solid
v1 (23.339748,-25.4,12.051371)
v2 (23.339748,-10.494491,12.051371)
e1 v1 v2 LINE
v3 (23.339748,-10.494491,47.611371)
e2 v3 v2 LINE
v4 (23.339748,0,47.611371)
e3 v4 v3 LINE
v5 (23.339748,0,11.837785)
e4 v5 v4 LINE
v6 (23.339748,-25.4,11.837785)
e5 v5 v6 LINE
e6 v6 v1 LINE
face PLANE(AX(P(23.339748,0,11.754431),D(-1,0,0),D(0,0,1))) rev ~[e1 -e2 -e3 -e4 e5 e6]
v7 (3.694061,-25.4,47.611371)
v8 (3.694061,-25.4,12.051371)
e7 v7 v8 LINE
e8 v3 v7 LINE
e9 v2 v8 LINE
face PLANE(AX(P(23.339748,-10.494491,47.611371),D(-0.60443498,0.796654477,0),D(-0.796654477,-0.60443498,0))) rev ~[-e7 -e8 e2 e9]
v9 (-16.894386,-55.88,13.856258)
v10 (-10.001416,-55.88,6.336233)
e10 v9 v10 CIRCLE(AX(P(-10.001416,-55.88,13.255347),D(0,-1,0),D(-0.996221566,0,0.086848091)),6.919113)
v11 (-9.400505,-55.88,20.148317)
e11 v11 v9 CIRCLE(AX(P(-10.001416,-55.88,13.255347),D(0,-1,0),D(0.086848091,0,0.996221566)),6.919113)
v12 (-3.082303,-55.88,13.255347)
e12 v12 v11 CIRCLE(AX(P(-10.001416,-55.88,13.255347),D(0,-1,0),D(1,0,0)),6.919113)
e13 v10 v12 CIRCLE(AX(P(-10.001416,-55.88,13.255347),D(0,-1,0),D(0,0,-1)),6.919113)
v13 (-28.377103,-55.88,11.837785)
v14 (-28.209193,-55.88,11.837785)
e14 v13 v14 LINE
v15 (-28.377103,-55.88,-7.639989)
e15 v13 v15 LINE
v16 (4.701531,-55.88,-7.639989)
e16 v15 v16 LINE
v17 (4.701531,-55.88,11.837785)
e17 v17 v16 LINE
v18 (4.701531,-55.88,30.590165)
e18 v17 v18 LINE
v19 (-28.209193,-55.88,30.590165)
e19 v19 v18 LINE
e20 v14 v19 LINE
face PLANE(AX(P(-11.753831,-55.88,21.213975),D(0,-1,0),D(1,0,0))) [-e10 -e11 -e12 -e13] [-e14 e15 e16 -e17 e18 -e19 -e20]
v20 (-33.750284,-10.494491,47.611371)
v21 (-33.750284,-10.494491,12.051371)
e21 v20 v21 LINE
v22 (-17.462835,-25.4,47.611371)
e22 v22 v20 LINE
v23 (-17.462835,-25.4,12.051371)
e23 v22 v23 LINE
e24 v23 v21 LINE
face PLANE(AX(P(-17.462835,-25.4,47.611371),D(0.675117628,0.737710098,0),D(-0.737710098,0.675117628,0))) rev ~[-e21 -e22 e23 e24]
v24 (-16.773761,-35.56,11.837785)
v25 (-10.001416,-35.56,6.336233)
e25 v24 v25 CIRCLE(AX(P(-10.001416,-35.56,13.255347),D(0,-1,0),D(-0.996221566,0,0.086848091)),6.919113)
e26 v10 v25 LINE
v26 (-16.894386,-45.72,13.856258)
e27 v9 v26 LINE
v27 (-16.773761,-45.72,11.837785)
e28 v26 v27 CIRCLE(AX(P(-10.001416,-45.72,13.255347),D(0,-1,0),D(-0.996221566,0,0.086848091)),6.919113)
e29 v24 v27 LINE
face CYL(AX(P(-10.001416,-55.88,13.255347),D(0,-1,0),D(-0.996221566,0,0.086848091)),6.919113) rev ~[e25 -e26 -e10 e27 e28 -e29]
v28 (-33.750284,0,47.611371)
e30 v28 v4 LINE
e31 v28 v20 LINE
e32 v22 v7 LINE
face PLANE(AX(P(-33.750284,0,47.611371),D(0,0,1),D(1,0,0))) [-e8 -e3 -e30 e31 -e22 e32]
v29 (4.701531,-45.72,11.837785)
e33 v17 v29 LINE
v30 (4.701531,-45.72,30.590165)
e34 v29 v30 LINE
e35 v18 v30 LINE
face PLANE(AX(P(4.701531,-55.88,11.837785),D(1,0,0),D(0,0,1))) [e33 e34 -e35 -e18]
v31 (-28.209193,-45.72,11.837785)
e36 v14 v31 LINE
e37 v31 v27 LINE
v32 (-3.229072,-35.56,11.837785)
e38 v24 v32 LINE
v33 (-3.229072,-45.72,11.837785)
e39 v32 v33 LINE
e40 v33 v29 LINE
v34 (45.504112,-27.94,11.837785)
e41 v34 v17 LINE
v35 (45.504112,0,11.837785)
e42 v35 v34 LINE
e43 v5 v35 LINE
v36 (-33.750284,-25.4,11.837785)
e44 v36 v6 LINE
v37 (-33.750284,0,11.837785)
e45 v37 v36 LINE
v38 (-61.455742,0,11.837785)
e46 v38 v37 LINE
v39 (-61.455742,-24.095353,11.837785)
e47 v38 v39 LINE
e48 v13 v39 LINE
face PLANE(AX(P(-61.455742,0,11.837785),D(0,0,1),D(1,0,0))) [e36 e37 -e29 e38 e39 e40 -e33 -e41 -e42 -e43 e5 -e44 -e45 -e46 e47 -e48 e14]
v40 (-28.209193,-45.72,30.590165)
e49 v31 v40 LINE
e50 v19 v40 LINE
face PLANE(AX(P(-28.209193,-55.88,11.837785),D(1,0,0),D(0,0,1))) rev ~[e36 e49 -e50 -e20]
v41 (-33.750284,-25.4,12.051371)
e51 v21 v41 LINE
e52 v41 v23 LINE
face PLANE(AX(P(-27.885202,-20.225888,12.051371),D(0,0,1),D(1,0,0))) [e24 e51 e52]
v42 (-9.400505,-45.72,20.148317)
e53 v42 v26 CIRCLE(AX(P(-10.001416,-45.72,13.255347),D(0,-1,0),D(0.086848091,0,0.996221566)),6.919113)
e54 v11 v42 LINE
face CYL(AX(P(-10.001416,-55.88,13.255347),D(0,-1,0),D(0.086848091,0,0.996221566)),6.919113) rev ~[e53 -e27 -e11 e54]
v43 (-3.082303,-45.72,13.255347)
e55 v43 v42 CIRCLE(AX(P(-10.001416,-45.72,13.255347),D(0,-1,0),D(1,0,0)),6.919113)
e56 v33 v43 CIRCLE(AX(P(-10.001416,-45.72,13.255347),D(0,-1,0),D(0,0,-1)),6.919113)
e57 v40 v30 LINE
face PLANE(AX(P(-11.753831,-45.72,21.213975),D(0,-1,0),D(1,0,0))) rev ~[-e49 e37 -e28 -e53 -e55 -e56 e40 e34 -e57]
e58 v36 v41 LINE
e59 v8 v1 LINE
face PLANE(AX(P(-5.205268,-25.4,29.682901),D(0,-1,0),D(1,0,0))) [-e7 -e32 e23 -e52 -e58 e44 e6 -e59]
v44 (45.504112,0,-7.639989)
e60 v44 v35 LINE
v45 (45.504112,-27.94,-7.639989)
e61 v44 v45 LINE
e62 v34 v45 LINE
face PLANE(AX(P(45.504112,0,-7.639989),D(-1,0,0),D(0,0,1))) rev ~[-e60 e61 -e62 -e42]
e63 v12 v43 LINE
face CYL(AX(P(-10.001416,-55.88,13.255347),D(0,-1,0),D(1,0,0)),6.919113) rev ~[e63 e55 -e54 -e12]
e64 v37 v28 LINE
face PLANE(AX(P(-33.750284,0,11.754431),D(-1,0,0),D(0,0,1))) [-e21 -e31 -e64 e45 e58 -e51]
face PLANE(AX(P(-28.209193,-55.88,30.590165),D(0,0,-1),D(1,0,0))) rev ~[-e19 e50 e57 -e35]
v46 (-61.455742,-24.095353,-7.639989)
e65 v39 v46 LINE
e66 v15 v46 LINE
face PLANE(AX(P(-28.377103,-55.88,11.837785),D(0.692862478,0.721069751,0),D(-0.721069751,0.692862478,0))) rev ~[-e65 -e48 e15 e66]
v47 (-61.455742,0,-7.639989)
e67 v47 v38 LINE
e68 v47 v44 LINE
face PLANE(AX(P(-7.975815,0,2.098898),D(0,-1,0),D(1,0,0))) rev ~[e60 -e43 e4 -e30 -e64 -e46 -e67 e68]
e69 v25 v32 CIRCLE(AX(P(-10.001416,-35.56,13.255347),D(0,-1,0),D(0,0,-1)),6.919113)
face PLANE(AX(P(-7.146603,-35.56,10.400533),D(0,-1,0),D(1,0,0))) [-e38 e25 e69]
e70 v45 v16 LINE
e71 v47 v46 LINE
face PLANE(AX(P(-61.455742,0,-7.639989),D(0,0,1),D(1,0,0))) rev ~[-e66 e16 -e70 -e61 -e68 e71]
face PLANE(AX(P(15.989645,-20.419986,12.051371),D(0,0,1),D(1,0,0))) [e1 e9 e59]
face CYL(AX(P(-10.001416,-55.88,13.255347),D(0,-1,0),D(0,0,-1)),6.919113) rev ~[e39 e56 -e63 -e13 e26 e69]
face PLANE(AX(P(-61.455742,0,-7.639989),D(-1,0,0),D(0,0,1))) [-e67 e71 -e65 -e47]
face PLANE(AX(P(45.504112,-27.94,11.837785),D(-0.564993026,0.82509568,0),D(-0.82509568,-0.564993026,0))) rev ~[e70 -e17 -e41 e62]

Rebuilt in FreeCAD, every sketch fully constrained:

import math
import FreeCAD as App
import Part
import Sketcher

V = App.Vector
Q = App.Units.Quantity

doc = App.newDocument("Part")
body = doc.addObject("PartDesign::Body", "Body")

# Sketch on XZ plane
sketch1 = doc.addObject("Sketcher::SketchObject", "Sketch")
body.addObject(sketch1)
sketch1.AttachmentSupport = (doc.XZ_Plane, [""])
sketch1.MapMode = "FlatFace"
sketch1.addGeometry(Part.LineSegment(V(-61, 12, 0), V(-61, -8, 0)), False)
sketch1.addGeometry(Part.LineSegment(V(-61, -8, 0), V(46, -8, 0)), False)
sketch1.addGeometry(Part.LineSegment(V(46, -8, 0), V(46, 12, 0)), False)
sketch1.addGeometry(Part.LineSegment(V(46, 12, 0), V(-61, 12, 0)), False)
sketch1.addConstraint(Sketcher.Constraint("Coincident", 0, 2, 1, 1))
sketch1.addConstraint(Sketcher.Constraint("Coincident", 1, 2, 2, 1))
sketch1.addConstraint(Sketcher.Constraint("Coincident", 2, 2, 3, 1))
sketch1.addConstraint(Sketcher.Constraint("Coincident", 3, 2, 0, 1))
sketch1.addConstraint(Sketcher.Constraint("Vertical", 0))
sketch1.addConstraint(Sketcher.Constraint("Horizontal", 1))
sketch1.addConstraint(Sketcher.Constraint("Vertical", 2))
sketch1.addConstraint(Sketcher.Constraint("Horizontal", 3))
sketch1.addConstraint(Sketcher.Constraint("DistanceX", 1, 1, 1, 2, Q("106.959853 mm")))
sketch1.addConstraint(Sketcher.Constraint("DistanceY", 0, 2, 0, 1, Q("19.477774 mm")))
sketch1.addConstraint(Sketcher.Constraint("DistanceX", 0, 2, -1, 1, Q("61.455742 mm")))
sketch1.addConstraint(Sketcher.Constraint("DistanceY", 0, 2, -1, 1, Q("7.639989 mm")))
pad1 = doc.addObject("PartDesign::Pad", "Pad")
body.addObject(pad1)
pad1.Profile = sketch1
pad1.Length = Q("2.2 in")

# Sketch on XY plane
sketch2 = doc.addObject("Sketcher::SketchObject", "Sketch001")
body.addObject(sketch2)
sketch2.AttachmentSupport = (doc.XY_Plane, [""])
sketch2.MapMode = "FlatFace"
sketch2.AttachmentOffset = App.Placement(V(0, 0, 11.837785), App.Rotation())
sketch2.addGeometry(Part.LineSegment(V(46, -28, 0), V(5, -56, 0)), False)
sketch2.addGeometry(Part.LineSegment(V(5, -56, 0), V(46, -56, 0)), False)
sketch2.addGeometry(Part.LineSegment(V(46, -56, 0), V(46, -28, 0)), False)
sketch2.addGeometry(Part.LineSegment(V(-61, -56, 0), V(-28, -56, 0)), False)
sketch2.addGeometry(Part.LineSegment(V(-28, -56, 0), V(-61, -24, 0)), False)
sketch2.addGeometry(Part.LineSegment(V(-61, -24, 0), V(-61, -56, 0)), False)
sketch2.addConstraint(Sketcher.Constraint("Coincident", 0, 2, 1, 1))
sketch2.addConstraint(Sketcher.Constraint("Coincident", 1, 2, 2, 1))
sketch2.addConstraint(Sketcher.Constraint("Coincident", 2, 2, 0, 1))
sketch2.addConstraint(Sketcher.Constraint("Coincident", 3, 2, 4, 1))
sketch2.addConstraint(Sketcher.Constraint("Coincident", 4, 2, 5, 1))
sketch2.addConstraint(Sketcher.Constraint("Coincident", 5, 2, 3, 1))
sketch2.addConstraint(Sketcher.Constraint("Horizontal", 1))
sketch2.addConstraint(Sketcher.Constraint("Vertical", 2))
sketch2.addConstraint(Sketcher.Constraint("Horizontal", 3))
sketch2.addConstraint(Sketcher.Constraint("Vertical", 5))
sketch2.addConstraint(Sketcher.Constraint("Horizontal", 1, 2, 3, 2))
sketch2.addConstraint(Sketcher.Constraint("DistanceY", 2, 1, 2, 2, Q("1.1 in")))
sketch2.addConstraint(Sketcher.Constraint("DistanceY", 0, 2, -1, 1, Q("2.2 in")))
sketch2.addConstraint(Sketcher.Constraint("DistanceX", 1, 1, 1, 2, Q("40.80258 mm")))
sketch2.addConstraint(Sketcher.Constraint("DistanceX", 3, 1, 3, 2, Q("33.078639 mm")))
sketch2.addConstraint(Sketcher.Constraint("DistanceY", 5, 2, 5, 1, Q("31.784647 mm")))
sketch2.addConstraint(Sketcher.Constraint("DistanceX", -1, 1, 0, 2, Q("4.701531 mm")))
sketch2.addConstraint(Sketcher.Constraint("DistanceX", 4, 2, -1, 1, Q("61.455742 mm")))
pocket1 = doc.addObject("PartDesign::Pocket", "Pocket")
body.addObject(pocket1)
pocket1.Profile = sketch2
pocket1.Length = Q("1 in")

# Sketch on XZ plane
sketch3 = doc.addObject("Sketcher::SketchObject", "Sketch002")
body.addObject(sketch3)
sketch3.AttachmentSupport = (doc.XZ_Plane, [""])
sketch3.MapMode = "FlatFace"
sketch3.addGeometry(Part.LineSegment(V(-34, 48, 0), V(-34, 12, 0)), False)
sketch3.addGeometry(Part.LineSegment(V(-34, 12, 0), V(23, 12, 0)), False)
sketch3.addGeometry(Part.LineSegment(V(23, 12, 0), V(23, 48, 0)), False)
sketch3.addGeometry(Part.LineSegment(V(23, 48, 0), V(-34, 48, 0)), False)
sketch3.addConstraint(Sketcher.Constraint("Coincident", 0, 2, 1, 1))
sketch3.addConstraint(Sketcher.Constraint("Coincident", 1, 2, 2, 1))
sketch3.addConstraint(Sketcher.Constraint("Coincident", 2, 2, 3, 1))
sketch3.addConstraint(Sketcher.Constraint("Coincident", 3, 2, 0, 1))
sketch3.addConstraint(Sketcher.Constraint("Vertical", 0))
sketch3.addConstraint(Sketcher.Constraint("Horizontal", 1))
sketch3.addConstraint(Sketcher.Constraint("Vertical", 2))
sketch3.addConstraint(Sketcher.Constraint("Horizontal", 3))
sketch3.addConstraint(Sketcher.Constraint("DistanceY", 0, 2, 0, 1, Q("35.85694 mm")))
sketch3.addConstraint(Sketcher.Constraint("DistanceX", 1, 1, 1, 2, Q("57.090033 mm")))
sketch3.addConstraint(Sketcher.Constraint("DistanceY", -1, 1, 0, 2, Q("11.754431 mm")))
sketch3.addConstraint(Sketcher.Constraint("DistanceX", -1, 1, 1, 2, Q("23.339748 mm")))
pad2 = doc.addObject("PartDesign::Pad", "Pad001")
body.addObject(pad2)
pad2.Profile = sketch3
pad2.Length = Q("1 in")

# Sketch on XY plane
sketch4 = doc.addObject("Sketcher::SketchObject", "Sketch003")
body.addObject(sketch4)
sketch4.AttachmentSupport = (doc.XY_Plane, [""])
sketch4.MapMode = "FlatFace"
sketch4.AttachmentOffset = App.Placement(V(0, 0, 47.611371), App.Rotation())
sketch4.addGeometry(Part.LineSegment(V(23, -10, 0), V(4, -25, 0)), False)
sketch4.addGeometry(Part.LineSegment(V(4, -25, 0), V(23, -25, 0)), False)
sketch4.addGeometry(Part.LineSegment(V(23, -25, 0), V(23, -10, 0)), False)
sketch4.addGeometry(Part.LineSegment(V(-34, -25, 0), V(-17, -25, 0)), False)
sketch4.addGeometry(Part.LineSegment(V(-17, -25, 0), V(-34, -10, 0)), False)
sketch4.addGeometry(Part.LineSegment(V(-34, -10, 0), V(-34, -25, 0)), False)
sketch4.addConstraint(Sketcher.Constraint("Coincident", 0, 2, 1, 1))
sketch4.addConstraint(Sketcher.Constraint("Coincident", 1, 2, 2, 1))
sketch4.addConstraint(Sketcher.Constraint("Coincident", 2, 2, 0, 1))
sketch4.addConstraint(Sketcher.Constraint("Coincident", 3, 2, 4, 1))
sketch4.addConstraint(Sketcher.Constraint("Coincident", 4, 2, 5, 1))
sketch4.addConstraint(Sketcher.Constraint("Coincident", 5, 2, 3, 1))
sketch4.addConstraint(Sketcher.Constraint("Horizontal", 1))
sketch4.addConstraint(Sketcher.Constraint("Vertical", 2))
sketch4.addConstraint(Sketcher.Constraint("Horizontal", 3))
sketch4.addConstraint(Sketcher.Constraint("Vertical", 5))
sketch4.addConstraint(Sketcher.Constraint("Horizontal", 1, 2, 3, 2))
sketch4.addConstraint(Sketcher.Constraint("Horizontal", 2, 2, 4, 2))
sketch4.addConstraint(Sketcher.Constraint("DistanceY", 0, 2, -1, 1, Q("1 in")))
sketch4.addConstraint(Sketcher.Constraint("DistanceX", 3, 1, 3, 2, Q("16.28745 mm")))
sketch4.addConstraint(Sketcher.Constraint("DistanceY", 2, 1, 2, 2, Q("14.905509 mm")))
sketch4.addConstraint(Sketcher.Constraint("DistanceX", 1, 1, 1, 2, Q("19.645687 mm")))
sketch4.addConstraint(Sketcher.Constraint("DistanceX", -1, 1, 0, 2, Q("3.694061 mm")))
sketch4.addConstraint(Sketcher.Constraint("DistanceX", 3, 2, -1, 1, Q("17.462835 mm")))
pocket2 = doc.addObject("PartDesign::Pocket", "Pocket001")
body.addObject(pocket2)
pocket2.Profile = sketch4
pocket2.Length = Q("1.4 in")

# Sketch on XZ plane
sketch5 = doc.addObject("Sketcher::SketchObject", "Sketch004")
body.addObject(sketch5)
sketch5.AttachmentSupport = (doc.XZ_Plane, [""])
sketch5.MapMode = "FlatFace"
sketch5.AttachmentOffset = App.Placement(V(0, 0, 2.2 * 25.4), App.Rotation())
sketch5.addGeometry(Part.LineSegment(V(-28, 31, 0), V(-28, 12, 0)), False)
sketch5.addGeometry(Part.LineSegment(V(-28, 12, 0), V(5, 12, 0)), False)
sketch5.addGeometry(Part.LineSegment(V(5, 12, 0), V(5, 31, 0)), False)
sketch5.addGeometry(Part.LineSegment(V(5, 31, 0), V(-28, 31, 0)), False)
sketch5.addConstraint(Sketcher.Constraint("Coincident", 0, 2, 1, 1))
sketch5.addConstraint(Sketcher.Constraint("Coincident", 1, 2, 2, 1))
sketch5.addConstraint(Sketcher.Constraint("Coincident", 2, 2, 3, 1))
sketch5.addConstraint(Sketcher.Constraint("Coincident", 3, 2, 0, 1))
sketch5.addConstraint(Sketcher.Constraint("Vertical", 0))
sketch5.addConstraint(Sketcher.Constraint("Horizontal", 1))
sketch5.addConstraint(Sketcher.Constraint("Vertical", 2))
sketch5.addConstraint(Sketcher.Constraint("Horizontal", 3))
sketch5.addConstraint(Sketcher.Constraint("DistanceY", 0, 2, 0, 1, Q("18.75238 mm")))
sketch5.addConstraint(Sketcher.Constraint("DistanceX", 1, 1, 1, 2, Q("32.910724 mm")))
sketch5.addConstraint(Sketcher.Constraint("DistanceX", -1, 1, 1, 2, Q("4.701531 mm")))
sketch5.addConstraint(Sketcher.Constraint("DistanceY", -1, 1, 0, 2, Q("11.837785 mm")))
pad3 = doc.addObject("PartDesign::Pad", "Pad002")
body.addObject(pad3)
pad3.Profile = sketch5
pad3.Length = Q("0.4 in")
pad3.Reversed = True

# Sketch on XZ plane
sketch6 = doc.addObject("Sketcher::SketchObject", "Sketch005")
body.addObject(sketch6)
sketch6.AttachmentSupport = (doc.XZ_Plane, [""])
sketch6.MapMode = "FlatFace"
sketch6.AttachmentOffset = App.Placement(V(0, 0, 2.2 * 25.4), App.Rotation())
sketch6.addGeometry(Part.ArcOfCircle(Part.Circle(V(-10, 13, 0), V(0, 0, 1), 7), math.radians(85), math.radians(175)), False)
sketch6.addGeometry(Part.ArcOfCircle(Part.Circle(V(-10, 13, 0), V(0, 0, 1), 7), math.radians(175), math.radians(270)), False)
sketch6.addGeometry(Part.ArcOfCircle(Part.Circle(V(-10, 13, 0), V(0, 0, 1), 7), math.radians(-90), math.radians(0)), False)
sketch6.addGeometry(Part.ArcOfCircle(Part.Circle(V(-10, 13, 0), V(0, 0, 1), 7), math.radians(0), math.radians(85)), False)
sketch6.addConstraint(Sketcher.Constraint("Tangent", 0, 2, 1, 1))
sketch6.addConstraint(Sketcher.Constraint("Tangent", 1, 2, 2, 1))
sketch6.addConstraint(Sketcher.Constraint("Tangent", 2, 2, 3, 1))
sketch6.addConstraint(Sketcher.Constraint("Tangent", 3, 2, 0, 1))
sketch6.addConstraint(Sketcher.Constraint("Equal", 0, 1))
sketch6.addConstraint(Sketcher.Constraint("Horizontal", 3, 3, 2, 2))
sketch6.addConstraint(Sketcher.Constraint("Vertical", 3, 3, 1, 2))
sketch6.addConstraint(Sketcher.Constraint("Radius", 0, Q("6.919113 mm")))
sketch6.addConstraint(Sketcher.Constraint("DistanceX", 3, 2, 2, 2, Q("6.318202 mm")))
sketch6.addConstraint(Sketcher.Constraint("DistanceY", -1, 1, 0, 2, Q("13.856258 mm")))
sketch6.addConstraint(Sketcher.Constraint("DistanceX", 0, 2, 0, 3, Q("6.89297 mm")))
sketch6.addConstraint(Sketcher.Constraint("DistanceX", 0, 3, -1, 1, Q("10.001416 mm")))
pocket3 = doc.addObject("PartDesign::Pocket", "Pocket002")
body.addObject(pocket3)
pocket3.Profile = sketch6
pocket3.Length = Q("0.8 in")

doc.recompute()
